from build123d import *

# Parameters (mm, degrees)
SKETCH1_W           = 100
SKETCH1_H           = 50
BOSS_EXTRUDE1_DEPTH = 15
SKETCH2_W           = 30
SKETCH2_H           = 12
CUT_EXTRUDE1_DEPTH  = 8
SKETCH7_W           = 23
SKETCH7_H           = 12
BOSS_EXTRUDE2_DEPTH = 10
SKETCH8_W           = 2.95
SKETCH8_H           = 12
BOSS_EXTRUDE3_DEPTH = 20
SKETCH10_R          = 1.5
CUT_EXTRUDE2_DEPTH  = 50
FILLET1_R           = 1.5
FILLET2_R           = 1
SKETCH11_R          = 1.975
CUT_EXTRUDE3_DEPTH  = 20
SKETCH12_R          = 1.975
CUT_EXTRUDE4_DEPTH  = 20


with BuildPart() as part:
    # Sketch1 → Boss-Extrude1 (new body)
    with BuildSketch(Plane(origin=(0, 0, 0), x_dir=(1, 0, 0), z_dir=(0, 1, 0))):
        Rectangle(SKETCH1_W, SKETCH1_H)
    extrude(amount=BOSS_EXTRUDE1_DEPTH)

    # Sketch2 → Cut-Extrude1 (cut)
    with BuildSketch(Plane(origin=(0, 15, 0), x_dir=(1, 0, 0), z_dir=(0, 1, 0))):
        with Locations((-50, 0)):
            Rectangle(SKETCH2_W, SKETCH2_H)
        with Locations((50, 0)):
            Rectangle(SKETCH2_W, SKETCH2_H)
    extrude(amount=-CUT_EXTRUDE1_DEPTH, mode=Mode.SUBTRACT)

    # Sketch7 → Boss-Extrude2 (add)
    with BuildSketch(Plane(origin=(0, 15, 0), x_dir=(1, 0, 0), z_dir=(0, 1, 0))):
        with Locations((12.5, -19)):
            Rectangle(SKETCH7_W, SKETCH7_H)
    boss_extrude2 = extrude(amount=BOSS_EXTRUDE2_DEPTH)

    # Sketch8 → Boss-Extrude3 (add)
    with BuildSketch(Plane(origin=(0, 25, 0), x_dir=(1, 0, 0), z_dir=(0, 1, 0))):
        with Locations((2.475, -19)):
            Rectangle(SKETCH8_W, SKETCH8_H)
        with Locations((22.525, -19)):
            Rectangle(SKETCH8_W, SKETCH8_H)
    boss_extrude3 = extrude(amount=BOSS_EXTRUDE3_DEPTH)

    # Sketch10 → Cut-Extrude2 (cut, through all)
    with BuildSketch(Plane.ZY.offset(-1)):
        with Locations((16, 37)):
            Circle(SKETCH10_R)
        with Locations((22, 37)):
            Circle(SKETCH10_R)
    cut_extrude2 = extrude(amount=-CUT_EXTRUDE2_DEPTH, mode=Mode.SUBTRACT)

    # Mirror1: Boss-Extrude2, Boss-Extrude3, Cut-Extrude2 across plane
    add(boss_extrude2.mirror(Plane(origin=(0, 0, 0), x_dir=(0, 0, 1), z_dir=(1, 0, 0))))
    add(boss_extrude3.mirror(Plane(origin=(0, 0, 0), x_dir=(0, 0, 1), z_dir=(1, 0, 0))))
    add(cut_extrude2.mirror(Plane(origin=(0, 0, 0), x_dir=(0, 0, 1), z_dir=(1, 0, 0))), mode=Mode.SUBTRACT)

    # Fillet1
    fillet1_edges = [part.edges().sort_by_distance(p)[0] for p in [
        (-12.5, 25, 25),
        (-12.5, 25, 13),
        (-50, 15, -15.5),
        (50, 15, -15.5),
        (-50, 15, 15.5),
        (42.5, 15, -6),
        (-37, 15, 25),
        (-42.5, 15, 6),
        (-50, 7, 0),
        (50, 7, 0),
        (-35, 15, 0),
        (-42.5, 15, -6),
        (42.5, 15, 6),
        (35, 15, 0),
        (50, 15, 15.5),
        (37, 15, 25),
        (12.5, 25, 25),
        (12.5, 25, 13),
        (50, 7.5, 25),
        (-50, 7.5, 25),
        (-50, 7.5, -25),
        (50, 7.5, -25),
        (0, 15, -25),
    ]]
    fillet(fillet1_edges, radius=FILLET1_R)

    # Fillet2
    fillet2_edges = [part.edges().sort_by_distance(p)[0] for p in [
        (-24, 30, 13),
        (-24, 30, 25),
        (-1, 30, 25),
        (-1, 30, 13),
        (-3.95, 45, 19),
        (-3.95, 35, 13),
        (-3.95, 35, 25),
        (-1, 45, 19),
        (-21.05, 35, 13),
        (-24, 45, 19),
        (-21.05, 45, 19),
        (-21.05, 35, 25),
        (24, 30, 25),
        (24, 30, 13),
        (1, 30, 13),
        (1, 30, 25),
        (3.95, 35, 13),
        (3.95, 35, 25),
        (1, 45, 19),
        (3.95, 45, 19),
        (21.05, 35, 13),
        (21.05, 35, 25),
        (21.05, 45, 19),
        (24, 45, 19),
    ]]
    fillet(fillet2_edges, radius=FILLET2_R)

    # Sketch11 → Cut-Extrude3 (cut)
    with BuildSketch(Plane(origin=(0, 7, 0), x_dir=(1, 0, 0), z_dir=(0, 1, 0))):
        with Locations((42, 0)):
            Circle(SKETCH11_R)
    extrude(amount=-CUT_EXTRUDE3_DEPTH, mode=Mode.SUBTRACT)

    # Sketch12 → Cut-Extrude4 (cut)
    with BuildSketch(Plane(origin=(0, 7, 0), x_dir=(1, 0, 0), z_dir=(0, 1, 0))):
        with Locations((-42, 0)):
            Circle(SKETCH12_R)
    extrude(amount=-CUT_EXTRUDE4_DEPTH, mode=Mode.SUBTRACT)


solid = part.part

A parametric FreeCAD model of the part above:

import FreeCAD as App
import Part
import Sketcher
from FreeCAD import Vector
Q = App.Units.Quantity


def edges_at(feature, points):
    """Names of the edges that pass closest to the given points."""
    edges = feature.Shape.Edges
    near = lambda p: min(range(len(edges)), key=lambda i: edges[i].distToShape(Part.Vertex(*p))[0])
    return sorted({f"Edge{near(p) + 1}" for p in points})


def add_polygon(sketch, points):
    """Adds a closed chain of lines whose ends are joined by coincident constraints."""
    first, n = sketch.GeometryCount, len(points)
    for a, b in zip(points, points[1:] + points[:1]):
        sketch.addGeometry(Part.LineSegment(App.Vector(*a, 0), App.Vector(*b, 0)), False)
    for i in range(n):
        sketch.addConstraint(Sketcher.Constraint("Coincident", first + i, 2, first + (i + 1) % n, 1))

doc = App.newDocument("Part")
params = doc.addObject("Spreadsheet::Sheet", "Params")
for row, (alias, value) in enumerate([
    ("sketch1_width", "100 mm"),
    ("sketch1_height", "50 mm"),
    ("pad1_length", "15 mm"),
    ("sketch2_width", "30 mm"),
    ("sketch2_height", "12 mm"),
    ("pocket1_length", "8 mm"),
    ("sketch3_width", "23 mm"),
    ("sketch3_height", "12 mm"),
    ("pad2_length", "10 mm"),
    ("sketch4_height", "12 mm"),
    ("sketch4_width", "2.95 mm"),
    ("pad3_length", "20 mm"),
    ("sketch5_diameter", "3 mm"),
    ("fillet_radius", "1.5 mm"),
    ("fillet2_radius", "1 mm"),
    ("sketch6_diameter", "3.95 mm"),
    ("pocket3_length", "20 mm"),
    ("sketch7_diameter", "3.95 mm"),
    ("pocket4_length", "20 mm"),
], start=1):
    params.set(f"A{row}", alias)
    params.set(f"B{row}", "=" + value)
    params.setAlias(f"B{row}", alias)

body = doc.addObject("PartDesign::Body", "Body")

sketch1 = body.newObject("Sketcher::SketchObject", "Sketch")
sketch1.AttachmentSupport = (doc.getObject("XZ_Plane"), [""])
sketch1.MapMode = "FlatFace"
add_polygon(sketch1, [(-50, -25), (-50, 25), (50, 25), (50, -25)])
sketch1.addConstraint(Sketcher.Constraint("Vertical", 0))
sketch1.addConstraint(Sketcher.Constraint("Horizontal", 1))
sketch1.addConstraint(Sketcher.Constraint("Vertical", 2))
sketch1.addConstraint(Sketcher.Constraint("Horizontal", 3))
sketch1.addConstraint(Sketcher.Constraint("Symmetric", 0, 2, 2, 2, -1, 1))
sketch1.addConstraint(Sketcher.Constraint("DistanceX", 1, 1, 1, 2, Q("100 mm")))
sketch1.addConstraint(Sketcher.Constraint("DistanceY", 0, 1, 0, 2, Q("50 mm")))
sketch1.setExpression("Constraints[9]", "Params.sketch1_width")
sketch1.setExpression("Constraints[10]", "Params.sketch1_height")
pad1 = body.newObject("PartDesign::Pad", "Pad")
pad1.Profile = sketch1
pad1.setExpression("Length", "Params.pad1_length")
pad1.Reversed = True

sketch2 = body.newObject("Sketcher::SketchObject", "Sketch001")
sketch2.AttachmentSupport = (doc.getObject("XZ_Plane"), [""])
sketch2.MapMode = "FlatFace"
sketch2.AttachmentOffset = App.Placement(Vector(0, 0, -15), App.Rotation())
add_polygon(sketch2, [(-65, -6), (-65, 6), (-35, 6), (-35, -6)])
add_polygon(sketch2, [(35, -6), (35, 6), (65, 6), (65, -6)])
sketch2.addConstraint(Sketcher.Constraint("Vertical", 0))
sketch2.addConstraint(Sketcher.Constraint("Horizontal", 1))
sketch2.addConstraint(Sketcher.Constraint("Vertical", 2))
sketch2.addConstraint(Sketcher.Constraint("Horizontal", 3))
sketch2.addConstraint(Sketcher.Constraint("Vertical", 4))
sketch2.addConstraint(Sketcher.Constraint("Horizontal", 5))
sketch2.addConstraint(Sketcher.Constraint("Vertical", 6))
sketch2.addConstraint(Sketcher.Constraint("Horizontal", 7))
sketch2.addConstraint(Sketcher.Constraint("Symmetric", 2, 2, 4, 2, -1, 1))
sketch2.addConstraint(Sketcher.Constraint("Symmetric", 0, 2, 6, 2, -1, 1))
sketch2.addConstraint(Sketcher.Constraint("Horizontal", 1, 2, 4, 2))
sketch2.addConstraint(Sketcher.Constraint("DistanceX", 1, 1, 1, 2, Q("30 mm")))
sketch2.addConstraint(Sketcher.Constraint("DistanceY", 0, 1, 0, 2, Q("12 mm")))
sketch2.addConstraint(Sketcher.Constraint("DistanceX", 0, 2, -1, 1, Q("65 mm")))
sketch2.setExpression("Constraints[19]", "Params.sketch2_width")
sketch2.setExpression("Constraints[20]", "Params.sketch2_height")
pocket1 = body.newObject("PartDesign::Pocket", "Pocket")
pocket1.Profile = sketch2
pocket1.setExpression("Length", "Params.pocket1_length")
pocket1.Reversed = True

sketch3 = body.newObject("Sketcher::SketchObject", "Sketch002")
sketch3.AttachmentSupport = (doc.getObject("XZ_Plane"), [""])
sketch3.MapMode = "FlatFace"
sketch3.AttachmentOffset = App.Placement(Vector(0, 0, -15), App.Rotation())
add_polygon(sketch3, [(1, 13), (1, 25), (24, 25), (24, 13)])
sketch3.addConstraint(Sketcher.Constraint("Vertical", 0))
sketch3.addConstraint(Sketcher.Constraint("Horizontal", 1))
sketch3.addConstraint(Sketcher.Constraint("Vertical", 2))
sketch3.addConstraint(Sketcher.Constraint("Horizontal", 3))
sketch3.addConstraint(Sketcher.Constraint("DistanceX", 1, 1, 1, 2, Q("23 mm")))
sketch3.addConstraint(Sketcher.Constraint("DistanceY", 0, 1, 0, 2, Q("12 mm")))
sketch3.addConstraint(Sketcher.Constraint("DistanceX", -1, 1, 0, 2, Q("1 mm")))
sketch3.addConstraint(Sketcher.Constraint("DistanceY", -1, 1, 0, 2, Q("25 mm")))
sketch3.setExpression("Constraints[8]", "Params.sketch3_width")
sketch3.setExpression("Constraints[9]", "Params.sketch3_height")
pad2 = body.newObject("PartDesign::Pad", "Pad001")
pad2.Profile = sketch3
pad2.setExpression("Length", "Params.pad2_length")
pad2.Reversed = True

sketch4 = body.newObject("Sketcher::SketchObject", "Sketch003")
sketch4.AttachmentSupport = (doc.getObject("XZ_Plane"), [""])
sketch4.MapMode = "FlatFace"
sketch4.AttachmentOffset = App.Placement(Vector(0, 0, -25), App.Rotation())
add_polygon(sketch4, [(1, 13), (1, 25), (4, 25), (4, 13)])
add_polygon(sketch4, [(21.1, 13), (21.1, 25), (24, 25), (24, 13)])
sketch4.addConstraint(Sketcher.Constraint("Vertical", 0))
sketch4.addConstraint(Sketcher.Constraint("Horizontal", 1))
sketch4.addConstraint(Sketcher.Constraint("Vertical", 2))
sketch4.addConstraint(Sketcher.Constraint("Horizontal", 3))
sketch4.addConstraint(Sketcher.Constraint("Vertical", 4))
sketch4.addConstraint(Sketcher.Constraint("Horizontal", 5))
sketch4.addConstraint(Sketcher.Constraint("Vertical", 6))
sketch4.addConstraint(Sketcher.Constraint("Horizontal", 7))
sketch4.addConstraint(Sketcher.Constraint("Horizontal", 1, 2, 4, 2))
sketch4.addConstraint(Sketcher.Constraint("Horizontal", 3, 2, 6, 2))
sketch4.addConstraint(Sketcher.Constraint("Equal", 3, 5))
sketch4.addConstraint(Sketcher.Constraint("DistanceY", 0, 1, 0, 2, Q("12 mm")))
sketch4.addConstraint(Sketcher.Constraint("DistanceX", -1, 1, 0, 2, Q("1 mm")))
sketch4.addConstraint(Sketcher.Constraint("DistanceY", -1, 1, 0, 2, Q("25 mm")))
sketch4.addConstraint(Sketcher.Constraint("DistanceX", -1, 1, 5, 2, Q("24 mm")))
sketch4.addConstraint(Sketcher.Constraint("DistanceX", 1, 1, 1, 2, Q("2.95 mm")))
sketch4.setExpression("Constraints[19]", "Params.sketch4_height")
sketch4.setExpression("Constraints[23]", "Params.sketch4_width")
pad3 = body.newObject("PartDesign::Pad", "Pad002")
pad3.Profile = sketch4
pad3.setExpression("Length", "Params.pad3_length")
pad3.Reversed = True

sketch5 = body.newObject("Sketcher::SketchObject", "Sketch004")
sketch5.AttachmentSupport = (doc.getObject("YZ_Plane"), [""])
sketch5.MapMode = "FlatFace"
sketch5.AttachmentOffset = App.Placement(Vector(0, 0, 1), App.Rotation())
sketch5.addGeometry(Part.Circle(Vector(37, 16, 0), Vector(0, 0, 1), 1.5), False)
sketch5.addGeometry(Part.Circle(Vector(37, 22, 0), Vector(0, 0, 1), 1.5), False)
sketch5.addConstraint(Sketcher.Constraint("Equal", 0, 1))
sketch5.addConstraint(Sketcher.Constraint("Vertical", 0, 3, 1, 3))
sketch5.addConstraint(Sketcher.Constraint("Diameter", 0, Q("3 mm")))
sketch5.addConstraint(Sketcher.Constraint("DistanceX", -1, 1, 0, 3, Q("37 mm")))
sketch5.addConstraint(Sketcher.Constraint("DistanceY", -1, 1, 0, 3, Q("16 mm")))
sketch5.addConstraint(Sketcher.Constraint("DistanceY", -1, 1, 1, 3, Q("22 mm")))
sketch5.setExpression("Constraints[2]", "Params.sketch5_diameter")
pocket2 = body.newObject("PartDesign::Pocket", "Pocket001")
pocket2.Profile = sketch5
pocket2.Type = "ThroughAll"
pocket2.Reversed = True
doc.recompute()

mirrored = body.newObject("PartDesign::Mirrored", "Mirrored")
mirrored.Originals = [pad2, pad3, pocket2]
mirrored.MirrorPlane = (doc.getObject("YZ_Plane"), [""])
body.Tip = mirrored
doc.recompute()

fillet = body.newObject("PartDesign::Fillet", "Fillet")
fillet.Base = (mirrored, edges_at(mirrored, [
    (-12.5, 25, 25),
    (-12.5, 25, 13),
    (-50, 15, -15.5),
    (50, 15, -15.5),
    (-50, 15, 15.5),
    (42.5, 15, -6),
    (-37, 15, 25),
    (-42.5, 15, 6),
    (-50, 7, 0),
    (50, 7, 0),
    (-35, 15, 0),
    (-42.5, 15, -6),
    (42.5, 15, 6),
    (35, 15, 0),
    (50, 15, 15.5),
    (37, 15, 25),
    (12.5, 25, 25),
    (12.5, 25, 13),
    (50, 7.5, 25),
    (-50, 7.5, 25),
    (-50, 7.5, -25),
    (50, 7.5, -25),
    (0, 15, -25),
]))
fillet.setExpression("Radius", "Params.fillet_radius")
doc.recompute()

fillet2 = body.newObject("PartDesign::Fillet", "Fillet001")
fillet2.Base = (fillet, edges_at(fillet, [
    (-24, 30, 13),
    (-24, 29.25, 25),
    (-1, 30, 25),
    (-1, 30, 13),
    (-3.95, 45, 19),
    (-3.95, 34.25, 13),
    (-3.95, 34.25, 25),
    (-1, 45, 19),
    (-21.05, 34.25, 13),
    (-24, 45, 19),
    (-21.05, 45, 19),
    (-21.05, 34.25, 25),
    (24, 29.25, 25),
    (24, 30, 13),
    (1, 30, 13),
    (1, 30, 25),
    (3.95, 34.25, 13),
    (3.95, 34.25, 25),
    (1, 45, 19),
    (3.95, 45, 19),
    (21.05, 34.25, 13),
    (21.05, 34.25, 25),
    (21.05, 45, 19),
    (24, 45, 19),
]))
fillet2.setExpression("Radius", "Params.fillet2_radius")

sketch6 = body.newObject("Sketcher::SketchObject", "Sketch005")
sketch6.AttachmentSupport = (doc.getObject("XZ_Plane"), [""])
sketch6.MapMode = "FlatFace"
sketch6.AttachmentOffset = App.Placement(Vector(0, 0, -7), App.Rotation())
sketch6.addGeometry(Part.Circle(Vector(42, 0, 0), Vector(0, 0, 1), 2), False)
sketch6.addConstraint(Sketcher.Constraint("PointOnObject", 0, 3, -1))
sketch6.addConstraint(Sketcher.Constraint("Diameter", 0, Q("3.95 mm")))
sketch6.addConstraint(Sketcher.Constraint("DistanceX", -1, 1, 0, 3, Q("42 mm")))
sketch6.setExpression("Constraints[1]", "Params.sketch6_diameter")
pocket3 = body.newObject("PartDesign::Pocket", "Pocket002")
pocket3.Profile = sketch6
pocket3.setExpression("Length", "Params.pocket3_length")
pocket3.Reversed = True

sketch7 = body.newObject("Sketcher::SketchObject", "Sketch006")
sketch7.AttachmentSupport = (doc.getObject("XZ_Plane"), [""])
sketch7.MapMode = "FlatFace"
sketch7.AttachmentOffset = App.Placement(Vector(0, 0, -7), App.Rotation())
sketch7.addGeometry(Part.Circle(Vector(-42, 0, 0), Vector(0, 0, 1), 2), False)
sketch7.addConstraint(Sketcher.Constraint("PointOnObject", 0, 3, -1))
sketch7.addConstraint(Sketcher.Constraint("Diameter", 0, Q("3.95 mm")))
sketch7.addConstraint(Sketcher.Constraint("DistanceX", 0, 3, -1, 1, Q("42 mm")))
sketch7.setExpression("Constraints[1]", "Params.sketch7_diameter")
pocket4 = body.newObject("PartDesign::Pocket", "Pocket003")
pocket4.Profile = sketch7
pocket4.setExpression("Length", "Params.pocket4_length")
pocket4.Reversed = True

doc.recompute()
